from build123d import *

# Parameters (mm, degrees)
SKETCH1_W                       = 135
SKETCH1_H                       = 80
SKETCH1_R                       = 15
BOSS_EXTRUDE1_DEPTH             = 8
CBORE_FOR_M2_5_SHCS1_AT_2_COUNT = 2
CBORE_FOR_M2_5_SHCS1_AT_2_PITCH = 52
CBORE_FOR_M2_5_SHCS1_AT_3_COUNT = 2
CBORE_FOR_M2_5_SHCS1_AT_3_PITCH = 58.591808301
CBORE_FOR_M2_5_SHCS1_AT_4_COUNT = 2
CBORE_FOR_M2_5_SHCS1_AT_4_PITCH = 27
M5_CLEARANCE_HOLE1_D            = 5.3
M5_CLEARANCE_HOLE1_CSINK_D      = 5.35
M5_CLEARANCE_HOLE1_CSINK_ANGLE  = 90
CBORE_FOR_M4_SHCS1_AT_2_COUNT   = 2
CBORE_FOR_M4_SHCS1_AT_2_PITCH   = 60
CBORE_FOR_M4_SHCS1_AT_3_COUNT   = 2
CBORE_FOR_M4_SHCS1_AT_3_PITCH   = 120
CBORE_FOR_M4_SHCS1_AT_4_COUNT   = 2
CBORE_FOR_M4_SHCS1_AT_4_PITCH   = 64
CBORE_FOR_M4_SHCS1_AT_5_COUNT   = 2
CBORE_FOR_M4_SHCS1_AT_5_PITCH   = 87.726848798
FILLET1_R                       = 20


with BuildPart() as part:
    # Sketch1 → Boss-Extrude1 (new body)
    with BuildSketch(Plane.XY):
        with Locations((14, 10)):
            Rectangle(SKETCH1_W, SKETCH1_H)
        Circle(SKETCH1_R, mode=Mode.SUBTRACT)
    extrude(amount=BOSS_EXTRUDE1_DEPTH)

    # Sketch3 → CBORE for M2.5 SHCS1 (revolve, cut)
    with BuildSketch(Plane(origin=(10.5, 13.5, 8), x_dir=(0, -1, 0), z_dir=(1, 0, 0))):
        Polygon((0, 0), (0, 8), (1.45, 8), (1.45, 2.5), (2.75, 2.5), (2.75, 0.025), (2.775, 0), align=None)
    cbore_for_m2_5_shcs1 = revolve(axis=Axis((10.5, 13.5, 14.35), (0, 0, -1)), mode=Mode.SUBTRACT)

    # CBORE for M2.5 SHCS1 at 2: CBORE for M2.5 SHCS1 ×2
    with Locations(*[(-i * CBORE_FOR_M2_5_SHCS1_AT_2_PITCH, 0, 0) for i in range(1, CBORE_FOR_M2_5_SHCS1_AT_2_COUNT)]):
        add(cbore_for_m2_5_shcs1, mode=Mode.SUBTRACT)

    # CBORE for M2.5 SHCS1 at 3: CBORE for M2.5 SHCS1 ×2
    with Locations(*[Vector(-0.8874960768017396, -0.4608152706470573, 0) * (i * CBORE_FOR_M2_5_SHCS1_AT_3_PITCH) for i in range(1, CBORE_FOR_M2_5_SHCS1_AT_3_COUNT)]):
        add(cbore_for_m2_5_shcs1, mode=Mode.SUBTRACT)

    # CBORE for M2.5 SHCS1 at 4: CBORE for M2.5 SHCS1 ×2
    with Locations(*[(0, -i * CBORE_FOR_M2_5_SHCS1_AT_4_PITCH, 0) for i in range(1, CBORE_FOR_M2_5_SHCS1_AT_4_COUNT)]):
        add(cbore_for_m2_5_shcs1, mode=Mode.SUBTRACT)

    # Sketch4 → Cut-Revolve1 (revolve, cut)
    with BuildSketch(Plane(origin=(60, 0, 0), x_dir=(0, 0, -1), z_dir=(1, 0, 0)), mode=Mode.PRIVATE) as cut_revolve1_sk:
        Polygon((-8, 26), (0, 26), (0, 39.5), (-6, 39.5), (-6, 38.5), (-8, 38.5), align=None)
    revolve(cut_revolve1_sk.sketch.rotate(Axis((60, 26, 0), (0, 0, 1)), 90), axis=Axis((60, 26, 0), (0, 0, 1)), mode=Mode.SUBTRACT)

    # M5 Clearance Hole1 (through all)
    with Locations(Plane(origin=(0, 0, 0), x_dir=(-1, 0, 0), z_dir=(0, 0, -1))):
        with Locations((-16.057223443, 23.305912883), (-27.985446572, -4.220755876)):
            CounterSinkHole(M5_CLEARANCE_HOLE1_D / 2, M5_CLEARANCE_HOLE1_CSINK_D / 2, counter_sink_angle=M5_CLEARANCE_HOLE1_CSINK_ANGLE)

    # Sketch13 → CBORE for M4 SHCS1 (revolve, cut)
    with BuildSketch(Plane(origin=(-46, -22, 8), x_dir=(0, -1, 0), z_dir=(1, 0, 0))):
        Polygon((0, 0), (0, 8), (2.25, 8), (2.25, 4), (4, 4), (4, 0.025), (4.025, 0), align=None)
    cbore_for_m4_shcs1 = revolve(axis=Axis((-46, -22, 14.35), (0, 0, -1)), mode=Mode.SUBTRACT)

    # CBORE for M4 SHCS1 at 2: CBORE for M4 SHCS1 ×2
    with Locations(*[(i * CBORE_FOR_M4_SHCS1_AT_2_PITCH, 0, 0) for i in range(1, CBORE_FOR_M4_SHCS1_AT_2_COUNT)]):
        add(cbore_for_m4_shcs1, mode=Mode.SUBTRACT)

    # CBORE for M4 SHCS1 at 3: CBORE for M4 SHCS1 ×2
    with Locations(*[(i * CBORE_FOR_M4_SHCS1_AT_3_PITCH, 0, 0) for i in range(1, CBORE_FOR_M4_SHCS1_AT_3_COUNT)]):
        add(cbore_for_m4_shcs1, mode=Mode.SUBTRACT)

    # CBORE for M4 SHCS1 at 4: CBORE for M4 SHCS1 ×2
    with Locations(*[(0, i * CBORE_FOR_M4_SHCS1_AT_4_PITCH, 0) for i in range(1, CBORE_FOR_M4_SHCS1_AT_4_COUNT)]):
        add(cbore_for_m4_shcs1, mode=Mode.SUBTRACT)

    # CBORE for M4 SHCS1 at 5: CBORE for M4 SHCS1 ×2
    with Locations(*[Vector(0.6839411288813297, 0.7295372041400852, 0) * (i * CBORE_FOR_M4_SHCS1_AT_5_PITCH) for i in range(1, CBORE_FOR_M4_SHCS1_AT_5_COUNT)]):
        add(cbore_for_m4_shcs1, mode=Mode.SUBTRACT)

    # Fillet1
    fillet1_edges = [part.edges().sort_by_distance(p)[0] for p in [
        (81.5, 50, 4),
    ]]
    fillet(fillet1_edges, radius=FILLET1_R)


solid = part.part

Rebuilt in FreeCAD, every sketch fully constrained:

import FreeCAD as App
import Part
import Sketcher
Q = App.Units.Quantity


def edges_at(feature, points):
    """Names of the edges that pass closest to the given points."""
    edges = feature.Shape.Edges
    near = lambda p: min(range(len(edges)), key=lambda i: edges[i].distToShape(Part.Vertex(*p))[0])
    return sorted({f"Edge{near(p) + 1}" for p in points})

doc = App.newDocument("Part")
body = doc.addObject("PartDesign::Body", "Body")

# Sketch on XY plane
sketch1 = doc.addObject("Sketcher::SketchObject", "Sketch")
body.addObject(sketch1)
sketch1.AttachmentSupport = (doc.XY_Plane, [""])
sketch1.MapMode = "FlatFace"
sketch1.addGeometry([
    Part.LineSegment(App.Vector(-54, 50, 0), App.Vector(-54, -30, 0)),  # 0
    Part.LineSegment(App.Vector(-54, -30, 0), App.Vector(82, -30, 0)),  # 1
    Part.LineSegment(App.Vector(82, -30, 0), App.Vector(82, 50, 0)),  # 2
    Part.LineSegment(App.Vector(82, 50, 0), App.Vector(-54, 50, 0)),  # 3
    Part.Circle(App.Vector(0, 0, 0), App.Vector(0, 0, 1), 15),  # 4
], False)
sketch1.addConstraint([
    Sketcher.Constraint("Coincident", 0, 2, 1, 1),
    Sketcher.Constraint("Coincident", 1, 2, 2, 1),
    Sketcher.Constraint("Coincident", 2, 2, 3, 1),
    Sketcher.Constraint("Coincident", 3, 2, 0, 1),
    Sketcher.Constraint("Vertical", 0),
    Sketcher.Constraint("Horizontal", 1),
    Sketcher.Constraint("Vertical", 2),
    Sketcher.Constraint("Horizontal", 3),
    Sketcher.Constraint("Coincident", 4, 3, -1, 1),
    Sketcher.Constraint("Diameter", 4, 30.0),
    Sketcher.Constraint("DistanceX", 1, 1, 1, 2, 135.0),
    Sketcher.Constraint("DistanceY", 0, 2, 0, 1, 80.0),
    Sketcher.Constraint("DistanceY", 0, 2, -1, 1, 30.0),
    Sketcher.Constraint("DistanceX", 0, 2, -1, 1, 53.5),
])
pad1 = doc.addObject("PartDesign::Pad", "Pad")
body.addObject(pad1)
pad1.Profile = sketch1
pad1.Length = 8

# Sketch on YZ plane
sketch2 = doc.addObject("Sketcher::SketchObject", "Sketch001")
body.addObject(sketch2)
sketch2.AttachmentSupport = (doc.YZ_Plane, [""])
sketch2.MapMode = "FlatFace"
sketch2.AttachmentOffset = App.Placement(App.Vector(0, 0, 10.5), App.Rotation())
sketch2.addGeometry([
    Part.LineSegment(App.Vector(13.5, 0, 0), App.Vector(13.5, 8, 0)),  # 0
    Part.LineSegment(App.Vector(13.5, 8, 0), App.Vector(10.725, 8, 0)),  # 1
    Part.LineSegment(App.Vector(10.725, 8, 0), App.Vector(10.75, 7.975, 0)),  # 2
    Part.LineSegment(App.Vector(10.75, 7.975, 0), App.Vector(10.75, 5.5, 0)),  # 3
    Part.LineSegment(App.Vector(10.75, 5.5, 0), App.Vector(12.05, 5.5, 0)),  # 4
    Part.LineSegment(App.Vector(12.05, 5.5, 0), App.Vector(12.05, 0, 0)),  # 5
    Part.LineSegment(App.Vector(12.05, 0, 0), App.Vector(13.5, 0, 0)),  # 6
], False)
sketch2.addGeometry(Part.LineSegment(App.Vector(13.5, 8, 0), App.Vector(13.5, 0, 0)), True)  # axis
sketch2.addConstraint([
    Sketcher.Constraint("Coincident", 0, 2, 1, 1),
    Sketcher.Constraint("Coincident", 1, 2, 2, 1),
    Sketcher.Constraint("Coincident", 2, 2, 3, 1),
    Sketcher.Constraint("Coincident", 3, 2, 4, 1),
    Sketcher.Constraint("Coincident", 4, 2, 5, 1),
    Sketcher.Constraint("Coincident", 5, 2, 6, 1),
    Sketcher.Constraint("Coincident", 6, 2, 0, 1),
    Sketcher.Constraint("Vertical", 0),
    Sketcher.Constraint("Horizontal", 1),
    Sketcher.Constraint("Vertical", 3),
    Sketcher.Constraint("Horizontal", 4),
    Sketcher.Constraint("Vertical", 5),
    Sketcher.Constraint("Horizontal", 6),
    Sketcher.Constraint("Vertical", 7),
    Sketcher.Constraint("Coincident", 7, 1, 0, 2),
    Sketcher.Constraint("PointOnObject", 5, 2, -1),
    Sketcher.Constraint("PointOnObject", 7, 2, -1),
    Sketcher.Constraint("DistanceY", 0, 1, 0, 2, 8.0),
    Sketcher.Constraint("Angle", 2, Q("-45 deg")),
    Sketcher.Constraint("DistanceX", 4, 1, 4, 2, 1.3),
    Sketcher.Constraint("DistanceY", 5, 2, 5, 1, 5.5),
    Sketcher.Constraint("DistanceX", 6, 1, 6, 2, 1.45),
    Sketcher.Constraint("DistanceX", -1, 1, 0, 2, 13.5),
    Sketcher.Constraint("DistanceX", 1, 2, 1, 1, 2.775),
])
groove = doc.addObject("PartDesign::Groove", "Groove")
body.addObject(groove)
groove.Profile = sketch2
groove.ReferenceAxis = (sketch2, ["Axis0"])
groove.Angle = 360
doc.recompute()

linearpattern = doc.addObject("PartDesign::LinearPattern", "LinearPattern")
body.addObject(linearpattern)
linearpattern.Originals = [groove]
linearpattern.Direction = (doc.X_Axis, [""])
linearpattern.Mode = "offset"
linearpattern.Offset = 52
linearpattern.Occurrences = 2
linearpattern.Reversed = True
body.Tip = linearpattern
doc.recompute()

datumline = doc.addObject("PartDesign::Line", "DatumLine")
body.addObject(datumline)
datumline.Placement = App.Placement(App.Vector(0, 0, 0), App.Rotation(App.Vector(0, 0, 1), App.Vector(-0.887496077, -0.460815271, 0)))
linearpattern2 = doc.addObject("PartDesign::LinearPattern", "LinearPattern001")
body.addObject(linearpattern2)
linearpattern2.Originals = [groove]
linearpattern2.Direction = (datumline, [""])
linearpattern2.Mode = "offset"
linearpattern2.Offset = 58.591808
linearpattern2.Occurrences = 2
body.Tip = linearpattern2
doc.recompute()

linearpattern3 = doc.addObject("PartDesign::LinearPattern", "LinearPattern002")
body.addObject(linearpattern3)
linearpattern3.Originals = [groove]
linearpattern3.Direction = (doc.Y_Axis, [""])
linearpattern3.Mode = "offset"
linearpattern3.Offset = 27
linearpattern3.Occurrences = 2
linearpattern3.Reversed = True
body.Tip = linearpattern3

# Sketch on YZ plane
sketch3 = doc.addObject("Sketcher::SketchObject", "Sketch002")
body.addObject(sketch3)
sketch3.AttachmentSupport = (doc.YZ_Plane, [""])
sketch3.MapMode = "FlatFace"
sketch3.AttachmentOffset = App.Placement(App.Vector(0, 0, 60), App.Rotation())
sketch3.addGeometry([
    Part.LineSegment(App.Vector(26, 8, 0), App.Vector(26, 0, 0)),  # 0
    Part.LineSegment(App.Vector(26, 0, 0), App.Vector(39.5, 0, 0)),  # 1
    Part.LineSegment(App.Vector(39.5, 0, 0), App.Vector(39.5, 6, 0)),  # 2
    Part.LineSegment(App.Vector(39.5, 6, 0), App.Vector(38.5, 6, 0)),  # 3
    Part.LineSegment(App.Vector(38.5, 6, 0), App.Vector(38.5, 8, 0)),  # 4
    Part.LineSegment(App.Vector(38.5, 8, 0), App.Vector(26, 8, 0)),  # 5
], False)
sketch3.addGeometry(Part.LineSegment(App.Vector(26, 0, 0), App.Vector(26, 8, 0)), True)  # axis
sketch3.addConstraint([
    Sketcher.Constraint("Coincident", 0, 2, 1, 1),
    Sketcher.Constraint("Coincident", 1, 2, 2, 1),
    Sketcher.Constraint("Coincident", 2, 2, 3, 1),
    Sketcher.Constraint("Coincident", 3, 2, 4, 1),
    Sketcher.Constraint("Coincident", 4, 2, 5, 1),
    Sketcher.Constraint("Coincident", 5, 2, 0, 1),
    Sketcher.Constraint("Vertical", 0),
    Sketcher.Constraint("Horizontal", 1),
    Sketcher.Constraint("Vertical", 2),
    Sketcher.Constraint("Horizontal", 3),
    Sketcher.Constraint("Vertical", 4),
    Sketcher.Constraint("Horizontal", 5),
    Sketcher.Constraint("Vertical", 6),
    Sketcher.Constraint("Coincident", 6, 1, 0, 2),
    Sketcher.Constraint("PointOnObject", 0, 2, -1),
    Sketcher.Constraint("Horizontal", 4, 2, 6, 2),
    Sketcher.Constraint("DistanceX", 3, 2, 3, 1, 1.0),
    Sketcher.Constraint("DistanceY", 0, 2, 0, 1, 8.0),
    Sketcher.Constraint("DistanceY", 2, 1, 2, 2, 6.0),
    Sketcher.Constraint("DistanceX", 1, 1, 1, 2, 13.5),
    Sketcher.Constraint("DistanceX", -1, 1, 0, 2, 26.0),
])
groove2 = doc.addObject("PartDesign::Groove", "Groove001")
body.addObject(groove2)
groove2.Profile = sketch3
groove2.ReferenceAxis = (sketch3, ["Axis0"])
groove2.Angle = 360

# Sketch on XY plane
sketch4 = doc.addObject("Sketcher::SketchObject", "Sketch003")
body.addObject(sketch4)
sketch4.AttachmentSupport = (doc.XY_Plane, [""])
sketch4.MapMode = "FlatFace"
sketch4.addGeometry([
    Part.Circle(App.Vector(16.1, 23.3, 0), App.Vector(0, 0, 1), 2.6),
    Part.Circle(App.Vector(28, -4.2, 0), App.Vector(0, 0, 1), 2.6),
], False)
sketch4.addConstraint([
    Sketcher.Constraint("Equal", 0, 1),
    Sketcher.Constraint("Diameter", 0, 5.3),
    Sketcher.Constraint("DistanceY", 1, 3, 0, 3, 27.526669),
    Sketcher.Constraint("DistanceX", -1, 1, 0, 3, 16.057223),
    Sketcher.Constraint("DistanceY", -1, 1, 0, 3, 23.305913),
    Sketcher.Constraint("DistanceX", -1, 1, 1, 3, 27.985447),
])
doc.recompute()
hole = doc.addObject("PartDesign::Hole", "Hole")
body.addObject(hole)
hole.Profile = sketch4
hole.ThreadType = "None"
hole.Diameter = 5.3
hole.DepthType = "ThroughAll"
hole.HoleCutType = "Countersink"
hole.HoleCutDiameter = 5.35
hole.HoleCutCountersinkAngle = 90
hole.Reversed = True

# Sketch on YZ plane
sketch5 = doc.addObject("Sketcher::SketchObject", "Sketch004")
body.addObject(sketch5)
sketch5.AttachmentSupport = (doc.YZ_Plane, [""])
sketch5.MapMode = "FlatFace"
sketch5.AttachmentOffset = App.Placement(App.Vector(0, 0, -46), App.Rotation())
sketch5.addGeometry([
    Part.LineSegment(App.Vector(-22, 0, 0), App.Vector(-22, 8, 0)),  # 0
    Part.LineSegment(App.Vector(-22, 8, 0), App.Vector(-26.025, 8, 0)),  # 1
    Part.LineSegment(App.Vector(-26.025, 8, 0), App.Vector(-26, 7.975, 0)),  # 2
    Part.LineSegment(App.Vector(-26, 7.975, 0), App.Vector(-26, 4, 0)),  # 3
    Part.LineSegment(App.Vector(-26, 4, 0), App.Vector(-24.25, 4, 0)),  # 4
    Part.LineSegment(App.Vector(-24.25, 4, 0), App.Vector(-24.25, 0, 0)),  # 5
    Part.LineSegment(App.Vector(-24.25, 0, 0), App.Vector(-22, 0, 0)),  # 6
], False)
sketch5.addGeometry(Part.LineSegment(App.Vector(-22, 8, 0), App.Vector(-22, 0, 0)), True)  # axis
sketch5.addConstraint([
    Sketcher.Constraint("Coincident", 0, 2, 1, 1),
    Sketcher.Constraint("Coincident", 1, 2, 2, 1),
    Sketcher.Constraint("Coincident", 2, 2, 3, 1),
    Sketcher.Constraint("Coincident", 3, 2, 4, 1),
    Sketcher.Constraint("Coincident", 4, 2, 5, 1),
    Sketcher.Constraint("Coincident", 5, 2, 6, 1),
    Sketcher.Constraint("Coincident", 6, 2, 0, 1),
    Sketcher.Constraint("Vertical", 0),
    Sketcher.Constraint("Horizontal", 1),
    Sketcher.Constraint("Vertical", 3),
    Sketcher.Constraint("Horizontal", 4),
    Sketcher.Constraint("Vertical", 5),
    Sketcher.Constraint("Horizontal", 6),
    Sketcher.Constraint("Vertical", 7),
    Sketcher.Constraint("Coincident", 7, 1, 0, 2),
    Sketcher.Constraint("PointOnObject", 5, 2, -1),
    Sketcher.Constraint("PointOnObject", 7, 2, -1),
    Sketcher.Constraint("DistanceY", 0, 1, 0, 2, 8.0),
    Sketcher.Constraint("DistanceY", 5, 2, 5, 1, 4.0),
    Sketcher.Constraint("Angle", 2, Q("-45 deg")),
    Sketcher.Constraint("DistanceX", 0, 2, -1, 1, 22.0),
    Sketcher.Constraint("DistanceX", 2, 2, -1, 1, 26.0),
    Sketcher.Constraint("DistanceX", 4, 1, 4, 2, 1.75),
    Sketcher.Constraint("DistanceX", 1, 2, 1, 1, 4.025),
])
groove3 = doc.addObject("PartDesign::Groove", "Groove002")
body.addObject(groove3)
groove3.Profile = sketch5
groove3.ReferenceAxis = (sketch5, ["Axis0"])
groove3.Angle = 360
doc.recompute()

linearpattern4 = doc.addObject("PartDesign::LinearPattern", "LinearPattern003")
body.addObject(linearpattern4)
linearpattern4.Originals = [groove3]
linearpattern4.Direction = (doc.X_Axis, [""])
linearpattern4.Mode = "offset"
linearpattern4.Offset = 60
linearpattern4.Occurrences = 2
body.Tip = linearpattern4
doc.recompute()

linearpattern5 = doc.addObject("PartDesign::LinearPattern", "LinearPattern004")
body.addObject(linearpattern5)
linearpattern5.Originals = [groove3]
linearpattern5.Direction = (doc.X_Axis, [""])
linearpattern5.Mode = "offset"
linearpattern5.Offset = 120
linearpattern5.Occurrences = 2
body.Tip = linearpattern5
doc.recompute()

linearpattern6 = doc.addObject("PartDesign::LinearPattern", "LinearPattern005")
body.addObject(linearpattern6)
linearpattern6.Originals = [groove3]
linearpattern6.Direction = (doc.Y_Axis, [""])
linearpattern6.Mode = "offset"
linearpattern6.Offset = 64
linearpattern6.Occurrences = 2
body.Tip = linearpattern6
doc.recompute()

datumline2 = doc.addObject("PartDesign::Line", "DatumLine001")
body.addObject(datumline2)
datumline2.Placement = App.Placement(App.Vector(0, 0, 0), App.Rotation(App.Vector(0, 0, 1), App.Vector(0.683941129, 0.729537204, 0)))
linearpattern7 = doc.addObject("PartDesign::LinearPattern", "LinearPattern006")
body.addObject(linearpattern7)
linearpattern7.Originals = [groove3]
linearpattern7.Direction = (datumline2, [""])
linearpattern7.Mode = "offset"
linearpattern7.Offset = 87.726849
linearpattern7.Occurrences = 2
body.Tip = linearpattern7
doc.recompute()

fillet = doc.addObject("PartDesign::Fillet", "Fillet")
body.addObject(fillet)
fillet.Base = (linearpattern7, edges_at(linearpattern7, [(81.5, 50, 4)]))
fillet.Radius = 20

doc.recompute()
